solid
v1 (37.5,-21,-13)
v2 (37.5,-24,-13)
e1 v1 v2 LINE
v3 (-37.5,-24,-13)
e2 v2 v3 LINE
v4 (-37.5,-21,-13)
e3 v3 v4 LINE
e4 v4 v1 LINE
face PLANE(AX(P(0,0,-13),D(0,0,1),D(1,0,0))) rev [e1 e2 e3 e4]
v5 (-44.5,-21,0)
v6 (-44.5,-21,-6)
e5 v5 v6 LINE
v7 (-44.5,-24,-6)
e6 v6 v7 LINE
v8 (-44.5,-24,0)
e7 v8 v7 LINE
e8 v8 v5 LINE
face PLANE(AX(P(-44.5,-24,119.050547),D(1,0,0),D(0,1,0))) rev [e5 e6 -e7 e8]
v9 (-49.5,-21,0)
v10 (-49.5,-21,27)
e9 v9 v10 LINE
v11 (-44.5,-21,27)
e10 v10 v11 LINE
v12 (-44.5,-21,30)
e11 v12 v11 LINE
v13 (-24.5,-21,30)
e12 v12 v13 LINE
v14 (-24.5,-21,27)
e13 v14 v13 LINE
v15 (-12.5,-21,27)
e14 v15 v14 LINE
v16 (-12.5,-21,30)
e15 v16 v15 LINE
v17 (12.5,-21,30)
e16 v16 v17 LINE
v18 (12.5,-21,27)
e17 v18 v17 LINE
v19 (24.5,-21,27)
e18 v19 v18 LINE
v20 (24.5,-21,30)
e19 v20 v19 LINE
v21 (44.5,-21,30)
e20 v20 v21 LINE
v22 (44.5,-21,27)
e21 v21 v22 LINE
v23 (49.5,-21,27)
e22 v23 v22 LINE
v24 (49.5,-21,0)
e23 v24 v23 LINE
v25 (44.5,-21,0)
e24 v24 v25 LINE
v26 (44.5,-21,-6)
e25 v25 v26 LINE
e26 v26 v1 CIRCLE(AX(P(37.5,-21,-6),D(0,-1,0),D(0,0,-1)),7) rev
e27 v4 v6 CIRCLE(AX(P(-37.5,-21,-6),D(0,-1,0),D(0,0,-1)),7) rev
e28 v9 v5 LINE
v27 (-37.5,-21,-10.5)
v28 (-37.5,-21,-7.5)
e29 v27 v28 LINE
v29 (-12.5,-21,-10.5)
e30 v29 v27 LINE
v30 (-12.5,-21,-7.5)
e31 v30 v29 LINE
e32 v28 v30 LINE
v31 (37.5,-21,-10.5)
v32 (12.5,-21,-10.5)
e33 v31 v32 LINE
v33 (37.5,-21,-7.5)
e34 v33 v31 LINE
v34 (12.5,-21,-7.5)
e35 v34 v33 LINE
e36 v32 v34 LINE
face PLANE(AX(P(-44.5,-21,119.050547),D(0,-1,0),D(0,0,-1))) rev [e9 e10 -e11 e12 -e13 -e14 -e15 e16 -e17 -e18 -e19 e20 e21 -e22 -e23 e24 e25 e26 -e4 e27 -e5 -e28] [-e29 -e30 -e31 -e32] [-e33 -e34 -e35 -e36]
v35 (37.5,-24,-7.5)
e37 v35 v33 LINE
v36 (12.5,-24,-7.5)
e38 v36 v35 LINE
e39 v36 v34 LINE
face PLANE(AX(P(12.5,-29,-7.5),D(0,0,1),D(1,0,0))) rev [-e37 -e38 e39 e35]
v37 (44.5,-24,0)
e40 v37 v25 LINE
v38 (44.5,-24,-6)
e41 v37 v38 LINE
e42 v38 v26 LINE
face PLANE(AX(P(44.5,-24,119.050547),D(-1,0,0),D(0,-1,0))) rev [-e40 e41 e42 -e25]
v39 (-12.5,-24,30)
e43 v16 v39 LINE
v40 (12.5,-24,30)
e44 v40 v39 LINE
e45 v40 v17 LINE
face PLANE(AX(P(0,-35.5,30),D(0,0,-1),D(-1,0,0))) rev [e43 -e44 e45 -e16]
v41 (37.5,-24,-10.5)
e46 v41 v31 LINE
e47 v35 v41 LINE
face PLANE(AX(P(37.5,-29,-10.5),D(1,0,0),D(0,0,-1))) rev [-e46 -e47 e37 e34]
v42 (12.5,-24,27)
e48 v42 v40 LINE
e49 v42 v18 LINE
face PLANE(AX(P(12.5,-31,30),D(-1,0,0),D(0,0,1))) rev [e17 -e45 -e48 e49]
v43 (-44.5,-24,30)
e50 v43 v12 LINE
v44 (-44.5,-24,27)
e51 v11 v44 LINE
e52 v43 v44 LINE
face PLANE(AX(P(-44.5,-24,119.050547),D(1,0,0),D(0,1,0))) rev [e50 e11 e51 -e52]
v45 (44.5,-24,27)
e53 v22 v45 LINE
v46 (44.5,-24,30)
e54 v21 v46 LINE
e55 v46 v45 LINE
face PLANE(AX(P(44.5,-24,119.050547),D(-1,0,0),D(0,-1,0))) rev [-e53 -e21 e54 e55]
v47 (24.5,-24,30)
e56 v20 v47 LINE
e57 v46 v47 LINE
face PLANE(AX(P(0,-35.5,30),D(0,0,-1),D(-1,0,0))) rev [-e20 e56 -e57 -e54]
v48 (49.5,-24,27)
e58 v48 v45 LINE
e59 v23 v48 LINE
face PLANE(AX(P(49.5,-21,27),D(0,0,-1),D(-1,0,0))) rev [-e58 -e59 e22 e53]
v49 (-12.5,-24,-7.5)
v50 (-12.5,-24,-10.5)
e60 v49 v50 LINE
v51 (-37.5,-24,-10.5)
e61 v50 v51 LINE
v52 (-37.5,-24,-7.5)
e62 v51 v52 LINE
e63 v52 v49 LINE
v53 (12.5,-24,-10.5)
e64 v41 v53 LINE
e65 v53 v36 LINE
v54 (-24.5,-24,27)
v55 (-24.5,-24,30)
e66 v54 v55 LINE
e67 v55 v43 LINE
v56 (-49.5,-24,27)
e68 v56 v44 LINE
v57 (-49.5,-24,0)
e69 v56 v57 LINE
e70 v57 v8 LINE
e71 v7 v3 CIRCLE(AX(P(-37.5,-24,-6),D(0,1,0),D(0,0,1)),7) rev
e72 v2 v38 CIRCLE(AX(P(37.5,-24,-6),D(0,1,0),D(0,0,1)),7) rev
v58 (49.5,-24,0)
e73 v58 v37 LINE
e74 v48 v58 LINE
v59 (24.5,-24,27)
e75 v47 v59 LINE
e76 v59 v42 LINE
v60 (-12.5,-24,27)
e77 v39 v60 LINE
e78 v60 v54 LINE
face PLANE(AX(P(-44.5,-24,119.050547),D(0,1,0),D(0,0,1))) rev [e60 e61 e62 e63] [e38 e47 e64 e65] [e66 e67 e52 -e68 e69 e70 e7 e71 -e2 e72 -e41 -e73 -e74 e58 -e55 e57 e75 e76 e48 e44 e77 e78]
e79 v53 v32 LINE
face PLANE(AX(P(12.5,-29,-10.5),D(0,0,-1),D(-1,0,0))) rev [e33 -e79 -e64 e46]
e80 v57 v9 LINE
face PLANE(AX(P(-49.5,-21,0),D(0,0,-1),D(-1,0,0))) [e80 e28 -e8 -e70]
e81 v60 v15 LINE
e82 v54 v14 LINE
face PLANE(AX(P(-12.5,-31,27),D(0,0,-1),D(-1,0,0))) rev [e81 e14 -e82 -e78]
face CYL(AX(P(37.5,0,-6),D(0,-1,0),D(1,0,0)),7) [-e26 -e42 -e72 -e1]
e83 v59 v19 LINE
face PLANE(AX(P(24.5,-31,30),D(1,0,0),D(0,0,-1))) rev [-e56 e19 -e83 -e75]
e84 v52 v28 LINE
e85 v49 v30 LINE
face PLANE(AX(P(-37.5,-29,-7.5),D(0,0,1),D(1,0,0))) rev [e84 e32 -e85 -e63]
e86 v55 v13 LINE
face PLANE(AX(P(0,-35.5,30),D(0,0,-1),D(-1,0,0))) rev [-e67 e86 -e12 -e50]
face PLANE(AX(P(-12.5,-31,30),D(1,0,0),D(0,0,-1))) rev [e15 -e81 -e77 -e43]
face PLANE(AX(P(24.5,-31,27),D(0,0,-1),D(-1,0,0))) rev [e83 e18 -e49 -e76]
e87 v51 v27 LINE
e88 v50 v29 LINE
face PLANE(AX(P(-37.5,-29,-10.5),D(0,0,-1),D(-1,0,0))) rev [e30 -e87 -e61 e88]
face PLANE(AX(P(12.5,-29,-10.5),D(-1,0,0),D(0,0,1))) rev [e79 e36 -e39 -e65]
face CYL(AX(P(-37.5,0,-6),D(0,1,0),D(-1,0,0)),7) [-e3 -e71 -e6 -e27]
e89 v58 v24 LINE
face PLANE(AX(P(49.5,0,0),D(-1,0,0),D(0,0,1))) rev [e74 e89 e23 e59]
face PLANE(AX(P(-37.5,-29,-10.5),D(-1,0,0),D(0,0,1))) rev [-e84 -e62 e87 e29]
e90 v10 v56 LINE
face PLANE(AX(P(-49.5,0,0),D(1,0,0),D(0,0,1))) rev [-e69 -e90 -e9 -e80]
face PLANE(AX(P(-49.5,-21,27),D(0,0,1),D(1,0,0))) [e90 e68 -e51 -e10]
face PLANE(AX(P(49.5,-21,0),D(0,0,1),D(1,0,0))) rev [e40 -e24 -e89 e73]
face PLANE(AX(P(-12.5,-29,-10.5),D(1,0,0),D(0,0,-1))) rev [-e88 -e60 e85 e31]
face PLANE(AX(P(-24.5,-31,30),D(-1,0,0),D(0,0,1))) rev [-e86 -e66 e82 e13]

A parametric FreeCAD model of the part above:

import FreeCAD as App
import Part
import Sketcher


def edges_at(feature, points):
    """Names of the edges that pass closest to the given points."""
    edges = feature.Shape.Edges
    near = lambda p: min(range(len(edges)), key=lambda i: edges[i].distToShape(Part.Vertex(*p))[0])
    return sorted({f"Edge{near(p) + 1}" for p in points})

doc = App.newDocument("Part")
body = doc.addObject("PartDesign::Body", "Body")

# Sketch on XY plane
sketch1 = body.newObject("Sketcher::SketchObject", "Sketch")
sketch1.AttachmentSupport = (doc.getObject("XY_Plane"), [""])
sketch1.MapMode = "FlatFace"
sketch1.addGeometry([
    Part.LineSegment(App.Vector(-44.5, -21, 0), App.Vector(-44.5, -24, 0)),
    Part.LineSegment(App.Vector(-44.5, -24, 0), App.Vector(44.5, -24, 0)),
    Part.LineSegment(App.Vector(44.5, -24, 0), App.Vector(44.5, -21, 0)),
    Part.LineSegment(App.Vector(44.5, -21, 0), App.Vector(-44.5, -21, 0)),
], False)
sketch1.addConstraint([
    Sketcher.Constraint("Coincident", 0, 2, 1, 1),
    Sketcher.Constraint("Coincident", 1, 2, 2, 1),
    Sketcher.Constraint("Coincident", 2, 2, 3, 1),
    Sketcher.Constraint("Coincident", 3, 2, 0, 1),
    Sketcher.Constraint("Vertical", 0),
    Sketcher.Constraint("Horizontal", 1),
    Sketcher.Constraint("Vertical", 2),
    Sketcher.Constraint("Horizontal", 3),
    Sketcher.Constraint("DistanceX", 1, 1, 1, 2, 89.0),
    Sketcher.Constraint("DistanceY", 0, 2, 0, 1, 3.0),
    Sketcher.Constraint("DistanceY", 0, 2, -1, 1, 24.0),
    Sketcher.Constraint("DistanceX", 0, 2, -1, 1, 44.5),
])
pad1 = body.newObject("PartDesign::Pad", "Pad")
pad1.Profile = sketch1
pad1.Type = "TwoLengths"
pad1.Length = 30
pad1.Length2 = 3

# Sketch on XZ plane
sketch2 = body.newObject("Sketcher::SketchObject", "Sketch001")
sketch2.AttachmentSupport = (doc.getObject("XZ_Plane"), [""])
sketch2.MapMode = "FlatFace"
sketch2.AttachmentOffset = App.Placement(App.Vector(0, 0, 21), App.Rotation())
sketch2.addGeometry([
    Part.LineSegment(App.Vector(12.5, 27, 0), App.Vector(12.5, 30, 0)),  # 0
    Part.LineSegment(App.Vector(12.5, 30, 0), App.Vector(24.5, 30, 0)),  # 1
    Part.LineSegment(App.Vector(24.5, 30, 0), App.Vector(24.5, 27, 0)),  # 2
    Part.LineSegment(App.Vector(24.5, 27, 0), App.Vector(12.5, 27, 0)),  # 3
    Part.LineSegment(App.Vector(-24.5, 27, 0), App.Vector(-24.5, 30, 0)),  # 4
    Part.LineSegment(App.Vector(-24.5, 30, 0), App.Vector(-12.5, 30, 0)),  # 5
    Part.LineSegment(App.Vector(-12.5, 30, 0), App.Vector(-12.5, 27, 0)),  # 6
    Part.LineSegment(App.Vector(-12.5, 27, 0), App.Vector(-24.5, 27, 0)),  # 7
], False)
sketch2.addConstraint([
    Sketcher.Constraint("Coincident", 0, 2, 1, 1),
    Sketcher.Constraint("Coincident", 1, 2, 2, 1),
    Sketcher.Constraint("Coincident", 2, 2, 3, 1),
    Sketcher.Constraint("Coincident", 3, 2, 0, 1),
    Sketcher.Constraint("Coincident", 4, 2, 5, 1),
    Sketcher.Constraint("Coincident", 5, 2, 6, 1),
    Sketcher.Constraint("Coincident", 6, 2, 7, 1),
    Sketcher.Constraint("Coincident", 7, 2, 4, 1),
    Sketcher.Constraint("Vertical", 0),
    Sketcher.Constraint("Horizontal", 1),
    Sketcher.Constraint("Vertical", 2),
    Sketcher.Constraint("Horizontal", 3),
    Sketcher.Constraint("Vertical", 4),
    Sketcher.Constraint("Horizontal", 5),
    Sketcher.Constraint("Vertical", 6),
    Sketcher.Constraint("Horizontal", 7),
    Sketcher.Constraint("Symmetric", 1, 2, 4, 2, -2),
    Sketcher.Constraint("Symmetric", 3, 2, 6, 2, -2),
    Sketcher.Constraint("DistanceX", 1, 1, 1, 2, 12.0),
    Sketcher.Constraint("DistanceY", 0, 1, 0, 2, 3.0),
    Sketcher.Constraint("DistanceY", -1, 1, 0, 2, 30.0),
    Sketcher.Constraint("DistanceX", 4, 2, 0, 2, 37.0),
])
pocket1 = body.newObject("PartDesign::Pocket", "Pocket")
pocket1.Profile = sketch2
pocket1.Length = 10
pocket1.Reversed = True

# Sketch on YZ plane
sketch3 = body.newObject("Sketcher::SketchObject", "Sketch002")
sketch3.AttachmentSupport = (doc.getObject("YZ_Plane"), [""])
sketch3.MapMode = "FlatFace"
sketch3.AttachmentOffset = App.Placement(App.Vector(0, 0, 44.5), App.Rotation())
sketch3.addGeometry([
    Part.LineSegment(App.Vector(-21, 27, 0), App.Vector(-24, 27, 0)),
    Part.LineSegment(App.Vector(-24, 27, 0), App.Vector(-24, 0, 0)),
    Part.LineSegment(App.Vector(-24, 0, 0), App.Vector(-21, 0, 0)),
    Part.LineSegment(App.Vector(-21, 0, 0), App.Vector(-21, 27, 0)),
], False)
sketch3.addConstraint([
    Sketcher.Constraint("Coincident", 0, 2, 1, 1),
    Sketcher.Constraint("Coincident", 1, 2, 2, 1),
    Sketcher.Constraint("Coincident", 2, 2, 3, 1),
    Sketcher.Constraint("Coincident", 3, 2, 0, 1),
    Sketcher.Constraint("Horizontal", 0),
    Sketcher.Constraint("Vertical", 1),
    Sketcher.Constraint("Horizontal", 2),
    Sketcher.Constraint("Vertical", 3),
    Sketcher.Constraint("PointOnObject", 1, 2, -1),
    Sketcher.Constraint("DistanceX", 0, 2, 0, 1, 3.0),
    Sketcher.Constraint("DistanceY", 1, 2, 1, 1, 27.0),
    Sketcher.Constraint("DistanceX", 0, 2, -1, 1, 24.0),
])
pad2 = body.newObject("PartDesign::Pad", "Pad001")
pad2.Profile = sketch3
pad2.Length = 5
doc.recompute()

mirrored = body.newObject("PartDesign::Mirrored", "Mirrored")
mirrored.Originals = [pad2]
mirrored.MirrorPlane = (doc.getObject("YZ_Plane"), [""])
body.Tip = mirrored

# Sketch on XY plane
sketch4 = body.newObject("Sketcher::SketchObject", "Sketch003")
sketch4.AttachmentSupport = (doc.getObject("XY_Plane"), [""])
sketch4.MapMode = "FlatFace"
sketch4.AttachmentOffset = App.Placement(App.Vector(0, 0, -3), App.Rotation())
sketch4.addGeometry([
    Part.LineSegment(App.Vector(44.5, -21, 0), App.Vector(44.5, -24, 0)),
    Part.LineSegment(App.Vector(44.5, -24, 0), App.Vector(-44.5, -24, 0)),
    Part.LineSegment(App.Vector(-44.5, -24, 0), App.Vector(-44.5, -21, 0)),
    Part.LineSegment(App.Vector(-44.5, -21, 0), App.Vector(44.5, -21, 0)),
], False)
sketch4.addConstraint([
    Sketcher.Constraint("Coincident", 0, 2, 1, 1),
    Sketcher.Constraint("Coincident", 1, 2, 2, 1),
    Sketcher.Constraint("Coincident", 2, 2, 3, 1),
    Sketcher.Constraint("Coincident", 3, 2, 0, 1),
    Sketcher.Constraint("Vertical", 0),
    Sketcher.Constraint("Horizontal", 1),
    Sketcher.Constraint("Vertical", 2),
    Sketcher.Constraint("Horizontal", 3),
    Sketcher.Constraint("DistanceX", 1, 2, 1, 1, 89.0),
    Sketcher.Constraint("DistanceY", 0, 2, 0, 1, 3.0),
    Sketcher.Constraint("DistanceY", 0, 2, -1, 1, 24.0),
    Sketcher.Constraint("DistanceX", -1, 1, 0, 2, 44.5),
])
pad3 = body.newObject("PartDesign::Pad", "Pad002")
pad3.Profile = sketch4
pad3.Length = 10
pad3.Reversed = True

# Sketch on XZ plane
sketch5 = body.newObject("Sketcher::SketchObject", "Sketch004")
sketch5.AttachmentSupport = (doc.getObject("XZ_Plane"), [""])
sketch5.MapMode = "FlatFace"
sketch5.AttachmentOffset = App.Placement(App.Vector(0, 0, 21), App.Rotation())
sketch5.addGeometry([
    Part.LineSegment(App.Vector(-37.5, -10.5, 0), App.Vector(-37.5, -7.5, 0)),  # 0
    Part.LineSegment(App.Vector(-37.5, -7.5, 0), App.Vector(-12.5, -7.5, 0)),  # 1
    Part.LineSegment(App.Vector(-12.5, -7.5, 0), App.Vector(-12.5, -10.5, 0)),  # 2
    Part.LineSegment(App.Vector(-12.5, -10.5, 0), App.Vector(-37.5, -10.5, 0)),  # 3
    Part.LineSegment(App.Vector(12.5, -10.5, 0), App.Vector(12.5, -7.5, 0)),  # 4
    Part.LineSegment(App.Vector(12.5, -7.5, 0), App.Vector(37.5, -7.5, 0)),  # 5
    Part.LineSegment(App.Vector(37.5, -7.5, 0), App.Vector(37.5, -10.5, 0)),  # 6
    Part.LineSegment(App.Vector(37.5, -10.5, 0), App.Vector(12.5, -10.5, 0)),  # 7
], False)
sketch5.addConstraint([
    Sketcher.Constraint("Coincident", 0, 2, 1, 1),
    Sketcher.Constraint("Coincident", 1, 2, 2, 1),
    Sketcher.Constraint("Coincident", 2, 2, 3, 1),
    Sketcher.Constraint("Coincident", 3, 2, 0, 1),
    Sketcher.Constraint("Coincident", 4, 2, 5, 1),
    Sketcher.Constraint("Coincident", 5, 2, 6, 1),
    Sketcher.Constraint("Coincident", 6, 2, 7, 1),
    Sketcher.Constraint("Coincident", 7, 2, 4, 1),
    Sketcher.Constraint("Vertical", 0),
    Sketcher.Constraint("Horizontal", 1),
    Sketcher.Constraint("Vertical", 2),
    Sketcher.Constraint("Horizontal", 3),
    Sketcher.Constraint("Vertical", 4),
    Sketcher.Constraint("Horizontal", 5),
    Sketcher.Constraint("Vertical", 6),
    Sketcher.Constraint("Horizontal", 7),
    Sketcher.Constraint("Symmetric", 1, 2, 4, 2, -2),
    Sketcher.Constraint("Symmetric", 3, 2, 6, 2, -2),
    Sketcher.Constraint("DistanceX", 1, 1, 1, 2, 25.0),
    Sketcher.Constraint("DistanceY", 0, 1, 0, 2, 3.0),
    Sketcher.Constraint("DistanceX", 1, 2, 4, 2, 25.0),
    Sketcher.Constraint("DistanceY", 0, 2, -1, 1, 7.5),
])
pocket2 = body.newObject("PartDesign::Pocket", "Pocket001")
pocket2.Profile = sketch5
pocket2.Length = 8
pocket2.Reversed = True
doc.recompute()

fillet = body.newObject("PartDesign::Fillet", "Fillet")
fillet.Base = (pocket2, edges_at(pocket2, [(-44.5, -22.5, -13), (44.5, -22.5, -13)]))
fillet.Radius = 7

doc.recompute()
